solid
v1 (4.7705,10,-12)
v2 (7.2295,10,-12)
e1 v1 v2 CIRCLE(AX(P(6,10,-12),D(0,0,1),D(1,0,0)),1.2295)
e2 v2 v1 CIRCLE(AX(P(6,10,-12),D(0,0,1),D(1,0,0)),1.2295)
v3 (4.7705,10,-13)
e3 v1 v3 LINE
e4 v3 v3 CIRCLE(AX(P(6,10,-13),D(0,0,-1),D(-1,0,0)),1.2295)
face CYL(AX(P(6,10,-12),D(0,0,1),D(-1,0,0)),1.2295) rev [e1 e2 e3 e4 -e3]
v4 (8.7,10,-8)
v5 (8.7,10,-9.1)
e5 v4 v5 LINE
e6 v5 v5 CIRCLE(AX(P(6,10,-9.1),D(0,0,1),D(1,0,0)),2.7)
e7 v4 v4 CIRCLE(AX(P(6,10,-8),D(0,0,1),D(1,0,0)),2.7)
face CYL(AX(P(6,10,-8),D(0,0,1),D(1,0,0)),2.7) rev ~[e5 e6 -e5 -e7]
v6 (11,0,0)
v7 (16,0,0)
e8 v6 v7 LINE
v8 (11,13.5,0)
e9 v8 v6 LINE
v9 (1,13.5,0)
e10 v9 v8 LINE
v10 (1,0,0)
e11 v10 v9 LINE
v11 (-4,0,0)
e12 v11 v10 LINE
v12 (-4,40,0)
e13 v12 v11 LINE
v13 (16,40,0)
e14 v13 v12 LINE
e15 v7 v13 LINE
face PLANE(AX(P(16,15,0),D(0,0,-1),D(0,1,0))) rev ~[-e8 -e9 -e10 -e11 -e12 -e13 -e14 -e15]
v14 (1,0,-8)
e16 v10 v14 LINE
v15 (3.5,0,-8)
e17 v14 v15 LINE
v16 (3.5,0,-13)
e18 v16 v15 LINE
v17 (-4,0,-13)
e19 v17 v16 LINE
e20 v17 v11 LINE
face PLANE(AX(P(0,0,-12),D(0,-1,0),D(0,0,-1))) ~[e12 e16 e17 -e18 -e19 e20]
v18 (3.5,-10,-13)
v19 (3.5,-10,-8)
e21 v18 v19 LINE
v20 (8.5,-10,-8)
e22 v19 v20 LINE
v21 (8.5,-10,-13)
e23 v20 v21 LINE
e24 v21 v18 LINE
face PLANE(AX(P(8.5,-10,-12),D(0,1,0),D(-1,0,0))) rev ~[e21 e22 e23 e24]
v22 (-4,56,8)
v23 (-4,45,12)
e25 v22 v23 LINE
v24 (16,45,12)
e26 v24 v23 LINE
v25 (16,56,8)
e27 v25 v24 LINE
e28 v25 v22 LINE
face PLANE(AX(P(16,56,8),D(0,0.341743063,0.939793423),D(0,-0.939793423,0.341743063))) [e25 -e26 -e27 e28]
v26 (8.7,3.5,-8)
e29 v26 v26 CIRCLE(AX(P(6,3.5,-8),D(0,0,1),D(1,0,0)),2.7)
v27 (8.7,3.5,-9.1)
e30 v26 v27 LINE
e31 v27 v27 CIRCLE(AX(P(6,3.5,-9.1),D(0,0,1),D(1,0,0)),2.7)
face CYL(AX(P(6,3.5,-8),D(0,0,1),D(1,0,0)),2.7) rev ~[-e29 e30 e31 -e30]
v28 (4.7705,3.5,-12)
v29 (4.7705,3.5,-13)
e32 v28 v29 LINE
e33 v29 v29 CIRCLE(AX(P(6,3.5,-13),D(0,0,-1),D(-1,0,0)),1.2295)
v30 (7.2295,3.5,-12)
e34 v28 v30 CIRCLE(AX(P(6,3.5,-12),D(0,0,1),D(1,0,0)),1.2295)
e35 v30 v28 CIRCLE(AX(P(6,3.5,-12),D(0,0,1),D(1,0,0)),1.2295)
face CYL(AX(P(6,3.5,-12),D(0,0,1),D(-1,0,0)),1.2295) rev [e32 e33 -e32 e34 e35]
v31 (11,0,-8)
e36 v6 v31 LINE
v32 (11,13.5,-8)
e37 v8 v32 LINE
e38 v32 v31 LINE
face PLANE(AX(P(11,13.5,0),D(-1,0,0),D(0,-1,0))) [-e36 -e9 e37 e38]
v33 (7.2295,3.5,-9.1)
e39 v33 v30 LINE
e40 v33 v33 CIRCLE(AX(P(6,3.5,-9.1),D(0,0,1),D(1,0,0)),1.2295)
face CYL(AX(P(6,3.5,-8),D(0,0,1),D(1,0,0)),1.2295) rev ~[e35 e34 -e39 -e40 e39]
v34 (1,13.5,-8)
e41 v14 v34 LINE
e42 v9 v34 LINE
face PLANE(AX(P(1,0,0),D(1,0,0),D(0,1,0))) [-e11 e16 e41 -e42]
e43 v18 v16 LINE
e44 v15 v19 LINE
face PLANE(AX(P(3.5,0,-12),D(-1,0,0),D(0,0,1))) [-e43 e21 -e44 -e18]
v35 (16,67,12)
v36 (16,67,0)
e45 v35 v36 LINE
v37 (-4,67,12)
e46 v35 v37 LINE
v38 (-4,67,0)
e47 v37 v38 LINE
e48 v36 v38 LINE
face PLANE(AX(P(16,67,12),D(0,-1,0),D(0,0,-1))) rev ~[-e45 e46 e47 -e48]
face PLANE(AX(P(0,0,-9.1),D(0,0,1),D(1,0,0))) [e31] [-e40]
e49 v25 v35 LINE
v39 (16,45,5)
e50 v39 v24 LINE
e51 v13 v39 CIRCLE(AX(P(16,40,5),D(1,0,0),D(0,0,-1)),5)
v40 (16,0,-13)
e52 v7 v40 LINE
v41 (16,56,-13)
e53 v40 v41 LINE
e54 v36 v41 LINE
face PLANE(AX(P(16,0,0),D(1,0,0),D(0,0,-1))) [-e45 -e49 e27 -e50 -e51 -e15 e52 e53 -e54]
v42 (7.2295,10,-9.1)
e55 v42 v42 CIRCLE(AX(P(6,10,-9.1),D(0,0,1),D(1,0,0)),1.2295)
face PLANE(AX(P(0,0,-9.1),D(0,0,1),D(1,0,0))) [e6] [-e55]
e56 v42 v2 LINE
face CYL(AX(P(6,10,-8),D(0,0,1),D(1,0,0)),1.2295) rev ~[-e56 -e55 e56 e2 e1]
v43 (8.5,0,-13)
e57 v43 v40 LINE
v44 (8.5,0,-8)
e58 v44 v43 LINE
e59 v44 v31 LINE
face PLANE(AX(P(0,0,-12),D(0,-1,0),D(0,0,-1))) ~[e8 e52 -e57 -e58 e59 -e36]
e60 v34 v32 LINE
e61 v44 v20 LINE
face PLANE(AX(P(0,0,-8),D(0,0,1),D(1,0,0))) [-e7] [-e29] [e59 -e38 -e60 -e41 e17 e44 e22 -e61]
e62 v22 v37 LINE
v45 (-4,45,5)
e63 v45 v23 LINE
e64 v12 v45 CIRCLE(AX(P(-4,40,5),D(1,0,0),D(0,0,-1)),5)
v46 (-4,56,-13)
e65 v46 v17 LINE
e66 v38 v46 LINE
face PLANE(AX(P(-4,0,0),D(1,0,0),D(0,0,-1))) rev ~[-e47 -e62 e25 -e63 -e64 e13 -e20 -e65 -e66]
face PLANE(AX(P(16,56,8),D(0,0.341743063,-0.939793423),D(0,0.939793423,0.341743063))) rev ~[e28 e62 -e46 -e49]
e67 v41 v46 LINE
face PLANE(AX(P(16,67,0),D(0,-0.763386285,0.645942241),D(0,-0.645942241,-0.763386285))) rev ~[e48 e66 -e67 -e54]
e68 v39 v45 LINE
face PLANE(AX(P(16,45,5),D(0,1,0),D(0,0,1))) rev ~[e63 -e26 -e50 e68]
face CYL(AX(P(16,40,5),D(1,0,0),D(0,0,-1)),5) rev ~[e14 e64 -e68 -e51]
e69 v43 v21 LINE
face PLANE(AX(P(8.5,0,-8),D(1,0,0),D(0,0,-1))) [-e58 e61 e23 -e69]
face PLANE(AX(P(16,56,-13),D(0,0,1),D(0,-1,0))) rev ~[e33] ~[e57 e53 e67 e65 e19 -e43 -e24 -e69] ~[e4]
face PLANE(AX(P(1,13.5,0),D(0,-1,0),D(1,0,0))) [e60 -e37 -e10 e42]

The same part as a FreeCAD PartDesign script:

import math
import FreeCAD as App
import Part
import Sketcher
from FreeCAD import Vector
Q = App.Units.Quantity

doc = App.newDocument("Part")
body = doc.addObject("PartDesign::Body", "Body")

sketch1 = body.newObject("Sketcher::SketchObject", "Sketch")
sketch1.AttachmentSupport = (doc.getObject("YZ_Plane"), [""])
sketch1.MapMode = "FlatFace"
sketch1.addGeometry([
    Part.LineSegment(Vector(15, 0, 0), Vector(0, 0, 0)),
    Part.LineSegment(Vector(0, 0, 0), Vector(0, -10, 0)),
    Part.LineSegment(Vector(0, -10, 0), Vector(15, -10, 0)),
    Part.LineSegment(Vector(15, -10, 0), Vector(15, 0, 0)),
], False)
sketch1.addConstraint([
    Sketcher.Constraint("Coincident", 0, 2, 1, 1),
    Sketcher.Constraint("Coincident", 1, 2, 2, 1),
    Sketcher.Constraint("Coincident", 2, 2, 3, 1),
    Sketcher.Constraint("Coincident", 3, 2, 0, 1),
    Sketcher.Constraint("Horizontal", 0),
    Sketcher.Constraint("Vertical", 1),
    Sketcher.Constraint("Horizontal", 2),
    Sketcher.Constraint("Vertical", 3),
    Sketcher.Constraint("Coincident", 0, 2, -1, 1),
    Sketcher.Constraint("DistanceX", 0, 2, 0, 1, Q("15 mm")),
    Sketcher.Constraint("DistanceY", 1, 2, 1, 1, Q("10 mm")),
])
pad1 = body.newObject("PartDesign::Pad", "Pad")
pad1.Profile = sketch1
pad1.Length = 12

sketch2 = body.newObject("Sketcher::SketchObject", "Sketch001")
sketch2.AttachmentSupport = (doc.getObject("XY_Plane"), [""])
sketch2.MapMode = "FlatFace"
sketch2.addGeometry([
    Part.LineSegment(Vector(1, 13.5, 0), Vector(1, 0, 0)),
    Part.LineSegment(Vector(1, 0, 0), Vector(11, 0, 0)),
    Part.LineSegment(Vector(11, 0, 0), Vector(11, 13.5, 0)),
    Part.LineSegment(Vector(11, 13.5, 0), Vector(1, 13.5, 0)),
], False)
sketch2.addConstraint([
    Sketcher.Constraint("Coincident", 0, 2, 1, 1),
    Sketcher.Constraint("Coincident", 1, 2, 2, 1),
    Sketcher.Constraint("Coincident", 2, 2, 3, 1),
    Sketcher.Constraint("Coincident", 3, 2, 0, 1),
    Sketcher.Constraint("Vertical", 0),
    Sketcher.Constraint("Horizontal", 1),
    Sketcher.Constraint("Vertical", 2),
    Sketcher.Constraint("Horizontal", 3),
    Sketcher.Constraint("PointOnObject", 0, 2, -1),
    Sketcher.Constraint("DistanceX", 1, 1, 1, 2, Q("10 mm")),
    Sketcher.Constraint("DistanceY", 0, 2, 0, 1, Q("13.5 mm")),
    Sketcher.Constraint("DistanceX", -1, 1, 0, 2, Q("1 mm")),
])
pocket1 = body.newObject("PartDesign::Pocket", "Pocket")
pocket1.Profile = sketch2
pocket1.Length = 8

sketch3 = body.newObject("Sketcher::SketchObject", "Sketch002")
sketch3.AttachmentSupport = (doc.getObject("XY_Plane"), [""])
sketch3.MapMode = "FlatFace"
sketch3.AttachmentOffset = App.Placement(Vector(0, 0, -10), App.Rotation())
sketch3.addGeometry([
    Part.LineSegment(Vector(0, 0, 0), Vector(0, 15, 0)),
    Part.LineSegment(Vector(0, 15, 0), Vector(12, 15, 0)),
    Part.LineSegment(Vector(12, 15, 0), Vector(12, 0, 0)),
    Part.LineSegment(Vector(12, 0, 0), Vector(0, 0, 0)),
], False)
sketch3.addConstraint([
    Sketcher.Constraint("Coincident", 0, 2, 1, 1),
    Sketcher.Constraint("Coincident", 1, 2, 2, 1),
    Sketcher.Constraint("Coincident", 2, 2, 3, 1),
    Sketcher.Constraint("Coincident", 3, 2, 0, 1),
    Sketcher.Constraint("Vertical", 0),
    Sketcher.Constraint("Horizontal", 1),
    Sketcher.Constraint("Vertical", 2),
    Sketcher.Constraint("Horizontal", 3),
    Sketcher.Constraint("Coincident", 3, 2, -1, 1),
    Sketcher.Constraint("DistanceX", 1, 1, 1, 2, Q("12 mm")),
    Sketcher.Constraint("DistanceY", 0, 1, 0, 2, Q("15 mm")),
])
pad2 = body.newObject("PartDesign::Pad", "Pad001")
pad2.Profile = sketch3
pad2.Length = 2
pad2.Reversed = True

sketch4 = body.newObject("Sketcher::SketchObject", "Sketch003")
sketch4.AttachmentSupport = (doc.getObject("XY_Plane"), [""])
sketch4.MapMode = "FlatFace"
sketch4.AttachmentOffset = App.Placement(Vector(0, 0, -8), App.Rotation())
sketch4.addGeometry([
    Part.Circle(Vector(6, 10, 0), Vector(0, 0, 1), 1.2295),
    Part.Circle(Vector(6, 3.5, 0), Vector(0, 0, 1), 1.2295),
], False)
sketch4.addConstraint([
    Sketcher.Constraint("Equal", 0, 1),
    Sketcher.Constraint("Vertical", 0, 3, 1, 3),
    Sketcher.Constraint("Diameter", 0, Q("2.459 mm")),
    Sketcher.Constraint("DistanceY", -1, 1, 1, 3, Q("3.5 mm")),
    Sketcher.Constraint("DistanceY", 1, 3, 0, 3, Q("6.5 mm")),
    Sketcher.Constraint("DistanceX", -1, 1, 0, 3, Q("6 mm")),
])
pocket2 = body.newObject("PartDesign::Pocket", "Pocket001")
pocket2.Profile = sketch4
pocket2.Length = 4

sketch5 = body.newObject("Sketcher::SketchObject", "Sketch004")
sketch5.AttachmentSupport = (doc.getObject("XY_Plane"), [""])
sketch5.MapMode = "FlatFace"
sketch5.AttachmentOffset = App.Placement(Vector(0, 0, -8), App.Rotation())
sketch5.addGeometry([
    Part.Circle(Vector(6, 10, 0), Vector(0, 0, 1), 2.7),
    Part.Circle(Vector(6, 10, 0), Vector(0, 0, 1), 1.2295),
    Part.Circle(Vector(6, 3.5, 0), Vector(0, 0, 1), 2.7),
    Part.Circle(Vector(6, 3.5, 0), Vector(0, 0, 1), 1.2295),
], False)
sketch5.addConstraint([
    Sketcher.Constraint("Coincident", 1, 3, 0, 3),
    Sketcher.Constraint("Coincident", 3, 3, 2, 3),
    Sketcher.Constraint("Equal", 0, 2),
    Sketcher.Constraint("Equal", 1, 3),
    Sketcher.Constraint("Vertical", 1, 3, 2, 3),
    Sketcher.Constraint("Diameter", 0, Q("5.4 mm")),
    Sketcher.Constraint("Diameter", 1, Q("2.459 mm")),
    Sketcher.Constraint("DistanceX", -1, 1, 0, 3, Q("6 mm")),
    Sketcher.Constraint("DistanceY", -1, 1, 0, 3, Q("10 mm")),
    Sketcher.Constraint("DistanceY", -1, 1, 2, 3, Q("3.5 mm")),
])
pocket3 = body.newObject("PartDesign::Pocket", "Pocket002")
pocket3.Profile = sketch5
pocket3.Length = 1.1

sketch6 = body.newObject("Sketcher::SketchObject", "Sketch005")
sketch6.AttachmentSupport = (doc.getObject("YZ_Plane"), [""])
sketch6.MapMode = "FlatFace"
sketch6.AttachmentOffset = App.Placement(Vector(0, 0, 12), App.Rotation())
sketch6.addGeometry([
    Part.LineSegment(Vector(15, -12, 0), Vector(15, 0, 0)),
    Part.LineSegment(Vector(15, 0, 0), Vector(0, 0, 0)),
    Part.LineSegment(Vector(0, 0, 0), Vector(0, -12, 0)),
    Part.LineSegment(Vector(0, -12, 0), Vector(15, -12, 0)),
], False)
sketch6.addConstraint([
    Sketcher.Constraint("Coincident", 0, 2, 1, 1),
    Sketcher.Constraint("Coincident", 1, 2, 2, 1),
    Sketcher.Constraint("Coincident", 2, 2, 3, 1),
    Sketcher.Constraint("Coincident", 3, 2, 0, 1),
    Sketcher.Constraint("Vertical", 0),
    Sketcher.Constraint("Horizontal", 1),
    Sketcher.Constraint("Vertical", 2),
    Sketcher.Constraint("Horizontal", 3),
    Sketcher.Constraint("Coincident", 1, 2, -1, 1),
    Sketcher.Constraint("DistanceX", 1, 2, 1, 1, Q("15 mm")),
    Sketcher.Constraint("DistanceY", 0, 1, 0, 2, Q("12 mm")),
])
pad3 = body.newObject("PartDesign::Pad", "Pad002")
pad3.Profile = sketch6
pad3.Length = 4
doc.recompute()

datumplane = body.newObject("PartDesign::Plane", "DatumPlane")
datumplane.AttachmentSupport = (doc.getObject("YZ_Plane"), [""])
datumplane.MapMode = "FlatFace"
datumplane.AttachmentOffset = App.Placement(Vector(0, 0, 6), App.Rotation())
mirrored = body.newObject("PartDesign::Mirrored", "Mirrored")
mirrored.Originals = [pad3]
mirrored.MirrorPlane = (datumplane, [""])
body.Tip = mirrored

sketch7 = body.newObject("Sketcher::SketchObject", "Sketch006")
sketch7.AttachmentSupport = (doc.getObject("XZ_Plane"), [""])
sketch7.MapMode = "FlatFace"
sketch7.addGeometry([
    Part.LineSegment(Vector(8.5, -12, 0), Vector(8.5, -8, 0)),
    Part.LineSegment(Vector(8.5, -8, 0), Vector(3.5, -8, 0)),
    Part.LineSegment(Vector(3.5, -8, 0), Vector(3.5, -12, 0)),
    Part.LineSegment(Vector(3.5, -12, 0), Vector(8.5, -12, 0)),
], False)
sketch7.addConstraint([
    Sketcher.Constraint("Coincident", 0, 2, 1, 1),
    Sketcher.Constraint("Coincident", 1, 2, 2, 1),
    Sketcher.Constraint("Coincident", 2, 2, 3, 1),
    Sketcher.Constraint("Coincident", 3, 2, 0, 1),
    Sketcher.Constraint("Vertical", 0),
    Sketcher.Constraint("Horizontal", 1),
    Sketcher.Constraint("Vertical", 2),
    Sketcher.Constraint("Horizontal", 3),
    Sketcher.Constraint("DistanceX", 1, 2, 1, 1, Q("5 mm")),
    Sketcher.Constraint("DistanceY", 0, 1, 0, 2, Q("4 mm")),
    Sketcher.Constraint("DistanceY", 0, 2, -1, 1, Q("8 mm")),
    Sketcher.Constraint("DistanceX", -1, 1, 0, 2, Q("8.5 mm")),
])
pad4 = body.newObject("PartDesign::Pad", "Pad003")
pad4.Profile = sketch7
pad4.Length = 10

sketch8 = body.newObject("Sketcher::SketchObject", "Sketch007")
sketch8.AttachmentSupport = (doc.getObject("XY_Plane"), [""])
sketch8.MapMode = "FlatFace"
sketch8.AttachmentOffset = App.Placement(Vector(0, 0, -12), App.Rotation())
sketch8.addGeometry([
    Part.LineSegment(Vector(-4, 15, 0), Vector(16, 15, 0)),
    Part.LineSegment(Vector(16, 15, 0), Vector(16, 0, 0)),
    Part.LineSegment(Vector(16, 0, 0), Vector(8.5, 0, 0)),
    Part.LineSegment(Vector(8.5, 0, 0), Vector(8.5, -10, 0)),
    Part.LineSegment(Vector(8.5, -10, 0), Vector(3.5, -10, 0)),
    Part.LineSegment(Vector(3.5, -10, 0), Vector(3.5, 0, 0)),
    Part.LineSegment(Vector(3.5, 0, 0), Vector(-4, 0, 0)),
    Part.LineSegment(Vector(-4, 0, 0), Vector(-4, 15, 0)),
    Part.Circle(Vector(6, 3.5, 0), Vector(0, 0, 1), 1.2295),
    Part.Circle(Vector(6, 10, 0), Vector(0, 0, 1), 1.2295),
], False)
sketch8.addConstraint([
    Sketcher.Constraint("Coincident", 0, 2, 1, 1),
    Sketcher.Constraint("Coincident", 1, 2, 2, 1),
    Sketcher.Constraint("Coincident", 2, 2, 3, 1),
    Sketcher.Constraint("Coincident", 3, 2, 4, 1),
    Sketcher.Constraint("Coincident", 4, 2, 5, 1),
    Sketcher.Constraint("Coincident", 5, 2, 6, 1),
    Sketcher.Constraint("Coincident", 6, 2, 7, 1),
    Sketcher.Constraint("Coincident", 7, 2, 0, 1),
    Sketcher.Constraint("Horizontal", 0),
    Sketcher.Constraint("Vertical", 1),
    Sketcher.Constraint("Horizontal", 2),
    Sketcher.Constraint("Vertical", 3),
    Sketcher.Constraint("Horizontal", 4),
    Sketcher.Constraint("Vertical", 5),
    Sketcher.Constraint("Horizontal", 6),
    Sketcher.Constraint("Vertical", 7),
    Sketcher.Constraint("Equal", 8, 9),
    Sketcher.Constraint("PointOnObject", 1, 2, -1),
    Sketcher.Constraint("PointOnObject", 5, 2, -1),
    Sketcher.Constraint("Vertical", 8, 3, 9, 3),
    Sketcher.Constraint("Equal", 2, 6),
    Sketcher.Constraint("DistanceX", 0, 1, 0, 2, Q("20 mm")),
    Sketcher.Constraint("DistanceX", 4, 2, 4, 1, Q("5 mm")),
    Sketcher.Constraint("DistanceY", 1, 2, 1, 1, Q("15 mm")),
    Sketcher.Constraint("DistanceY", 3, 2, 3, 1, Q("10 mm")),
    Sketcher.Constraint("Diameter", 8, Q("2.459 mm")),
    Sketcher.Constraint("DistanceX", -1, 1, 8, 3, Q("6 mm")),
    Sketcher.Constraint("DistanceY", -1, 1, 9, 3, Q("10 mm")),
    Sketcher.Constraint("DistanceX", -1, 1, 0, 2, Q("16 mm")),
    Sketcher.Constraint("DistanceY", -1, 1, 8, 3, Q("3.5 mm")),
])
pad5 = body.newObject("PartDesign::Pad", "Pad004")
pad5.Profile = sketch8
pad5.Length = 1
pad5.Reversed = True

sketch9 = body.newObject("Sketcher::SketchObject", "Sketch008")
sketch9.AttachmentSupport = (doc.getObject("YZ_Plane"), [""])
sketch9.MapMode = "FlatFace"
sketch9.AttachmentOffset = App.Placement(Vector(0, 0, 16), App.Rotation())
sketch9.addGeometry([
    Part.LineSegment(Vector(40, 0, 0), Vector(15, 0, 0)),
    Part.LineSegment(Vector(15, 0, 0), Vector(15, -13, 0)),
    Part.LineSegment(Vector(15, -13, 0), Vector(56, -13, 0)),
    Part.LineSegment(Vector(56, -13, 0), Vector(67, 0, 0)),
    Part.LineSegment(Vector(67, 0, 0), Vector(67, 12, 0)),
    Part.LineSegment(Vector(67, 12, 0), Vector(56, 8, 0)),
    Part.LineSegment(Vector(56, 8, 0), Vector(45, 12, 0)),
    Part.LineSegment(Vector(45, 12, 0), Vector(45, 5, 0)),
    Part.ArcOfCircle(Part.Circle(Vector(40, 5, 0), Vector(0, 0, 1), 5), math.radians(-90), math.radians(0)),
], False)
sketch9.addConstraint([
    Sketcher.Constraint("Coincident", 0, 2, 1, 1),
    Sketcher.Constraint("Coincident", 1, 2, 2, 1),
    Sketcher.Constraint("Coincident", 2, 2, 3, 1),
    Sketcher.Constraint("Coincident", 3, 2, 4, 1),
    Sketcher.Constraint("Coincident", 4, 2, 5, 1),
    Sketcher.Constraint("Coincident", 5, 2, 6, 1),
    Sketcher.Constraint("Coincident", 6, 2, 7, 1),
    Sketcher.Constraint("Tangent", 7, 2, 8, 2),
    Sketcher.Constraint("Tangent", 8, 1, 0, 1),
    Sketcher.Constraint("Horizontal", 0),
    Sketcher.Constraint("Vertical", 1),
    Sketcher.Constraint("Horizontal", 2),
    Sketcher.Constraint("Vertical", 4),
    Sketcher.Constraint("Vertical", 7),
    Sketcher.Constraint("PointOnObject", 0, 2, -1),
    Sketcher.Constraint("PointOnObject", 3, 2, -1),
    Sketcher.Constraint("Horizontal", 4, 2, 6, 2),
    Sketcher.Constraint("Vertical", 2, 2, 5, 2),
    Sketcher.Constraint("Equal", 5, 6),
    Sketcher.Constraint("Radius", 8, Q("5 mm")),
    Sketcher.Constraint("DistanceX", 6, 2, 4, 2, Q("22 mm")),
    Sketcher.Constraint("DistanceX", 0, 2, 0, 1, Q("25 mm")),
    Sketcher.Constraint("DistanceY", 1, 2, 1, 1, Q("13 mm")),
    Sketcher.Constraint("DistanceY", 4, 1, 4, 2, Q("12 mm")),
    Sketcher.Constraint("DistanceX", -1, 1, 8, 3, Q("40 mm")),
    Sketcher.Constraint("DistanceY", -1, 1, 5, 2, Q("8 mm")),
])
pad6 = body.newObject("PartDesign::Pad", "Pad005")
pad6.Profile = sketch9
pad6.Length = 20
pad6.Reversed = True

doc.recompute()
